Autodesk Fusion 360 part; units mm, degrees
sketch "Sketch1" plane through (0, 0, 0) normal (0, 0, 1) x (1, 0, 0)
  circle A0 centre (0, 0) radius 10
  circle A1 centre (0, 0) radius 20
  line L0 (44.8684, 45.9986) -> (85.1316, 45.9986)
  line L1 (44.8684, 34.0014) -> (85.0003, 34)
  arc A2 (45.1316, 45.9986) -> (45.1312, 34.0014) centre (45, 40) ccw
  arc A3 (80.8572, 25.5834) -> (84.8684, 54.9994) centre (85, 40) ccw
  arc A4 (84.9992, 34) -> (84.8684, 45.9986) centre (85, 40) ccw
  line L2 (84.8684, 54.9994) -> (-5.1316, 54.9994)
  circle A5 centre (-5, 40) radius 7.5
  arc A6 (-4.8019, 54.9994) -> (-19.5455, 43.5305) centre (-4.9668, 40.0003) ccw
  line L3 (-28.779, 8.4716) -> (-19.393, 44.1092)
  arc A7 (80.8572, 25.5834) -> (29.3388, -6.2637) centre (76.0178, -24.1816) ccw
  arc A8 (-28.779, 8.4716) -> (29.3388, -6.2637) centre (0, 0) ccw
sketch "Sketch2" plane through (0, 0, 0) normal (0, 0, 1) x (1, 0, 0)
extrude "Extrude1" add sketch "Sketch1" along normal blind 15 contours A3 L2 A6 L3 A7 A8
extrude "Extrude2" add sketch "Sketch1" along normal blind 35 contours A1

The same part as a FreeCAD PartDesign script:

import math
import FreeCAD as App
import Part
import Sketcher

doc = App.newDocument("Part")
body = doc.addObject("PartDesign::Body", "Body")

# Sketch on XY plane
sketch1 = body.newObject("Sketcher::SketchObject", "Sketch")
sketch1.AttachmentSupport = (doc.getObject("XY_Plane"), [""])
sketch1.MapMode = "FlatFace"
sketch1.addGeometry([
    Part.ArcOfCircle(Part.Circle(App.Vector(76.0178, -24.1816, 0), App.Vector(0, 0, 1), 49.99975), math.radians(84.445733), math.radians(159.000523)),  # 0
    Part.ArcOfCircle(Part.Circle(App.Vector(85, 40, 0), App.Vector(0, 0, 1), 15.000038), math.radians(-106.032702), math.radians(90.502682)),  # 1
    Part.LineSegment(App.Vector(84.8684, 54.9994, 0), App.Vector(-5.1316, 54.9994, 0)),  # 2
    Part.ArcOfCircle(Part.Circle(App.Vector(-4.9668, 40.0003, 0), App.Vector(0, 0, 1), 15.000006), math.radians(90.629502), math.radians(164.101878)),  # 3
    Part.LineSegment(App.Vector(-19.393, 44.1092, 0), App.Vector(-28.779, 8.4716, 0)),  # 4
    Part.ArcOfCircle(Part.Circle(App.Vector(0, 0, 0), App.Vector(0, 0, 1), 29.999981), math.radians(163.597289), math.radians(347.948541)),  # 5
    Part.Circle(App.Vector(0, 0, 0), App.Vector(0, 0, 1), 20),  # 6
    Part.Circle(App.Vector(-5, 40, 0), App.Vector(0, 0, 1), 7.5),  # 7
    Part.ArcOfCircle(Part.Circle(App.Vector(45, 40, 0), App.Vector(0, 0, 1), 6.000043), math.radians(91.256779), math.radians(268.743221)),  # 8
    Part.LineSegment(App.Vector(44.8684, 45.9986, 0), App.Vector(85.1316, 45.9986, 0)),  # 9
    Part.ArcOfCircle(Part.Circle(App.Vector(85, 40, 0), App.Vector(0, 0, 1), 6), math.radians(-89.997135), math.radians(88.743221)),  # 10
    Part.LineSegment(App.Vector(85.0003, 34, 0), App.Vector(44.8684, 34.0014, 0)),  # 11
], False)
sketch1.addConstraint([
    Sketcher.Constraint("Coincident", 0, 1, 1, 1),
    Sketcher.Constraint("Coincident", 1, 2, 2, 1),
    Sketcher.Constraint("Coincident", 2, 2, 3, 1),
    Sketcher.Constraint("Coincident", 3, 2, 4, 1),
    Sketcher.Constraint("Coincident", 4, 2, 5, 1),
    Sketcher.Constraint("Coincident", 5, 2, 0, 2),
    Sketcher.Constraint("Coincident", 8, 1, 9, 1),
    Sketcher.Constraint("Coincident", 9, 2, 10, 2),
    Sketcher.Constraint("Tangent", 10, 1, 11, 1),
    Sketcher.Constraint("Coincident", 11, 2, 8, 2),
    Sketcher.Constraint("Horizontal", 2),
    Sketcher.Constraint("Horizontal", 9),
    Sketcher.Constraint("Coincident", 5, 3, -1, 1),
    Sketcher.Constraint("Coincident", 6, 3, -1, 1),
    Sketcher.Constraint("Coincident", 10, 3, 1, 3),
    Sketcher.Constraint("Equal", 1, 3),
    Sketcher.Constraint("Equal", 8, 10),
    Sketcher.Constraint("Horizontal", 1, 3, 7, 3),
    Sketcher.Constraint("Horizontal", 7, 3, 8, 3),
    Sketcher.Constraint("Vertical", 8, 1, 11, 2),
    Sketcher.Constraint("Diameter", 6, 40.0),
    Sketcher.Constraint("Diameter", 7, 15.0),
    Sketcher.Constraint("Radius", 1, 15.0),
    Sketcher.Constraint("Radius", 5, 30.0),
    Sketcher.Constraint("Radius", 8, 6.0),
    Sketcher.Constraint("DistanceX", 2, 2, 2, 1, 90.0),
    Sketcher.Constraint("DistanceX", -1, 1, 1, 3, 85.0),
    Sketcher.Constraint("DistanceY", -1, 1, 1, 3, 40.0),
    Sketcher.Constraint("DistanceX", 7, 3, -1, 1, 5.0),
    Sketcher.Constraint("DistanceX", -1, 1, 8, 3, 45.0),
    Sketcher.Constraint("DistanceX", 8, 1, 1, 2, 40.0),
    Sketcher.Constraint("Radius", 0, 49.9998),
    Sketcher.Constraint("Distance", 4, 36.853),
    Sketcher.Constraint("Distance", 11, 40.132),
    Sketcher.Constraint("DistanceX", 3, 2, -1, 1, 19.393),
    Sketcher.Constraint("DistanceX", 4, 2, -1, 1, 28.779),
    Sketcher.Constraint("DistanceY", 0, 3, 3, 3, 64.182),
    Sketcher.Constraint("DistanceY", 0, 3, 0, 1, 49.765),
])
pad1 = body.newObject("PartDesign::Pad", "Pad")
pad1.Profile = sketch1
pad1.Length = 15

# Sketch on XY plane
sketch2 = body.newObject("Sketcher::SketchObject", "Sketch001")
sketch2.AttachmentSupport = (doc.getObject("XY_Plane"), [""])
sketch2.MapMode = "FlatFace"
sketch2.addGeometry([
    Part.Circle(App.Vector(0, 0, 0), App.Vector(0, 0, 1), 20),
    Part.Circle(App.Vector(0, 0, 0), App.Vector(0, 0, 1), 10),
], False)
sketch2.addConstraint([
    Sketcher.Constraint("Coincident", 0, 3, -1, 1),
    Sketcher.Constraint("Coincident", 1, 3, -1, 1),
    Sketcher.Constraint("Diameter", 0, 40.0),
    Sketcher.Constraint("Diameter", 1, 20.0),
])
pad2 = body.newObject("PartDesign::Pad", "Pad001")
pad2.Profile = sketch2
pad2.Length = 35

doc.recompute()
